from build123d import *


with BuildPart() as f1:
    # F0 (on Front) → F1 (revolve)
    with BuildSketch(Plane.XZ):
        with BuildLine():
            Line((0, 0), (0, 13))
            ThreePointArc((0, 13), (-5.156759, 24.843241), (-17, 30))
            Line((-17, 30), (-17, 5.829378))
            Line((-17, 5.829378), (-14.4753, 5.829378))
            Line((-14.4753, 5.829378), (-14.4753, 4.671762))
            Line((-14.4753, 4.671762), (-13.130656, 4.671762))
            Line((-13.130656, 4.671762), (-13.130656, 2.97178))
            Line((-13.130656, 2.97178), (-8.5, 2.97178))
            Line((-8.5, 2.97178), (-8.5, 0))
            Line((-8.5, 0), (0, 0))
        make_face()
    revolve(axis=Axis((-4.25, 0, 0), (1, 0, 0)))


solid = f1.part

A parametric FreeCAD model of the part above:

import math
import FreeCAD as App
import Part
import Sketcher

doc = App.newDocument("Part")
params = doc.addObject("Spreadsheet::Sheet", "Params")
for row, (alias, value) in enumerate([
    ("sketch1_height", "13 mm"),
    ("sketch1_width", "8.5 mm"),
    ("revolution_angle", "360 deg"),
], start=1):
    params.set(f"A{row}", alias)
    params.set(f"B{row}", "=" + value)
    params.setAlias(f"B{row}", alias)

body = doc.addObject("PartDesign::Body", "Body")

sketch1 = body.newObject("Sketcher::SketchObject", "Sketch")
sketch1.AttachmentSupport = (doc.getObject("XZ_Plane"), [""])
sketch1.MapMode = "FlatFace"
sketch1.addGeometry([
    Part.LineSegment(App.Vector(0, 0, 0), App.Vector(0, 13, 0)),
    Part.ArcOfCircle(Part.Circle(App.Vector(-17.6, 12.4, 0), App.Vector(0, 0, 1), 17.6), math.radians(2), math.radians(88)),
    Part.LineSegment(App.Vector(-17, 30, 0), App.Vector(-17, 5.8, 0)),
    Part.LineSegment(App.Vector(-17, 5.8, 0), App.Vector(-14.5, 5.8, 0)),
    Part.LineSegment(App.Vector(-14.5, 5.8, 0), App.Vector(-14.5, 4.7, 0)),
    Part.LineSegment(App.Vector(-14.5, 4.7, 0), App.Vector(-13.1, 4.7, 0)),
    Part.LineSegment(App.Vector(-13.1, 4.7, 0), App.Vector(-13.1, 3, 0)),
    Part.LineSegment(App.Vector(-13.1, 3, 0), App.Vector(-8.5, 3, 0)),
    Part.LineSegment(App.Vector(-8.5, 3, 0), App.Vector(-8.5, 0, 0)),
    Part.LineSegment(App.Vector(-8.5, 0, 0), App.Vector(0, 0, 0)),
], False)
sketch1.addConstraint([
    Sketcher.Constraint("Coincident", 0, 2, 1, 1),
    Sketcher.Constraint("Coincident", 1, 2, 2, 1),
    Sketcher.Constraint("Coincident", 2, 2, 3, 1),
    Sketcher.Constraint("Coincident", 3, 2, 4, 1),
    Sketcher.Constraint("Coincident", 4, 2, 5, 1),
    Sketcher.Constraint("Coincident", 5, 2, 6, 1),
    Sketcher.Constraint("Coincident", 6, 2, 7, 1),
    Sketcher.Constraint("Coincident", 7, 2, 8, 1),
    Sketcher.Constraint("Coincident", 8, 2, 9, 1),
    Sketcher.Constraint("Coincident", 9, 2, 0, 1),
    Sketcher.Constraint("Vertical", 0),
    Sketcher.Constraint("Vertical", 2),
    Sketcher.Constraint("Horizontal", 3),
    Sketcher.Constraint("Vertical", 4),
    Sketcher.Constraint("Horizontal", 5),
    Sketcher.Constraint("Vertical", 6),
    Sketcher.Constraint("Horizontal", 7),
    Sketcher.Constraint("Vertical", 8),
    Sketcher.Constraint("Horizontal", 9),
    Sketcher.Constraint("Coincident", 9, 2, -1, 1),
    Sketcher.Constraint("DistanceY", 0, 1, 0, 2, 13.0),
    Sketcher.Constraint("DistanceX", 9, 1, 9, 2, 8.5),
    Sketcher.Constraint("DistanceX", 1, 2, -1, 1, 17.0),
    Sketcher.Constraint("DistanceY", -1, 1, 1, 2, 30.0),
    Sketcher.Constraint("DistanceX", 3, 1, 3, 2, 2.5247),
    Sketcher.Constraint("Radius", 1, 17.645148),
    Sketcher.Constraint("DistanceY", 8, 2, 8, 1, 2.97178),
    Sketcher.Constraint("DistanceY", 6, 2, 3, 2, 2.857598),
    Sketcher.Constraint("DistanceX", 5, 1, 5, 2, 1.344644),
    Sketcher.Constraint("DistanceY", 4, 2, 4, 1, 1.157616),
])
sketch1.setExpression("Constraints[20]", "Params.sketch1_height")
sketch1.setExpression("Constraints[21]", "Params.sketch1_width")
revolution = body.newObject("PartDesign::Revolution", "Revolution")
revolution.Profile = sketch1
revolution.ReferenceAxis = (sketch1, ["H_Axis"])
revolution.setExpression("Angle", "Params.revolution_angle")

doc.recompute()
